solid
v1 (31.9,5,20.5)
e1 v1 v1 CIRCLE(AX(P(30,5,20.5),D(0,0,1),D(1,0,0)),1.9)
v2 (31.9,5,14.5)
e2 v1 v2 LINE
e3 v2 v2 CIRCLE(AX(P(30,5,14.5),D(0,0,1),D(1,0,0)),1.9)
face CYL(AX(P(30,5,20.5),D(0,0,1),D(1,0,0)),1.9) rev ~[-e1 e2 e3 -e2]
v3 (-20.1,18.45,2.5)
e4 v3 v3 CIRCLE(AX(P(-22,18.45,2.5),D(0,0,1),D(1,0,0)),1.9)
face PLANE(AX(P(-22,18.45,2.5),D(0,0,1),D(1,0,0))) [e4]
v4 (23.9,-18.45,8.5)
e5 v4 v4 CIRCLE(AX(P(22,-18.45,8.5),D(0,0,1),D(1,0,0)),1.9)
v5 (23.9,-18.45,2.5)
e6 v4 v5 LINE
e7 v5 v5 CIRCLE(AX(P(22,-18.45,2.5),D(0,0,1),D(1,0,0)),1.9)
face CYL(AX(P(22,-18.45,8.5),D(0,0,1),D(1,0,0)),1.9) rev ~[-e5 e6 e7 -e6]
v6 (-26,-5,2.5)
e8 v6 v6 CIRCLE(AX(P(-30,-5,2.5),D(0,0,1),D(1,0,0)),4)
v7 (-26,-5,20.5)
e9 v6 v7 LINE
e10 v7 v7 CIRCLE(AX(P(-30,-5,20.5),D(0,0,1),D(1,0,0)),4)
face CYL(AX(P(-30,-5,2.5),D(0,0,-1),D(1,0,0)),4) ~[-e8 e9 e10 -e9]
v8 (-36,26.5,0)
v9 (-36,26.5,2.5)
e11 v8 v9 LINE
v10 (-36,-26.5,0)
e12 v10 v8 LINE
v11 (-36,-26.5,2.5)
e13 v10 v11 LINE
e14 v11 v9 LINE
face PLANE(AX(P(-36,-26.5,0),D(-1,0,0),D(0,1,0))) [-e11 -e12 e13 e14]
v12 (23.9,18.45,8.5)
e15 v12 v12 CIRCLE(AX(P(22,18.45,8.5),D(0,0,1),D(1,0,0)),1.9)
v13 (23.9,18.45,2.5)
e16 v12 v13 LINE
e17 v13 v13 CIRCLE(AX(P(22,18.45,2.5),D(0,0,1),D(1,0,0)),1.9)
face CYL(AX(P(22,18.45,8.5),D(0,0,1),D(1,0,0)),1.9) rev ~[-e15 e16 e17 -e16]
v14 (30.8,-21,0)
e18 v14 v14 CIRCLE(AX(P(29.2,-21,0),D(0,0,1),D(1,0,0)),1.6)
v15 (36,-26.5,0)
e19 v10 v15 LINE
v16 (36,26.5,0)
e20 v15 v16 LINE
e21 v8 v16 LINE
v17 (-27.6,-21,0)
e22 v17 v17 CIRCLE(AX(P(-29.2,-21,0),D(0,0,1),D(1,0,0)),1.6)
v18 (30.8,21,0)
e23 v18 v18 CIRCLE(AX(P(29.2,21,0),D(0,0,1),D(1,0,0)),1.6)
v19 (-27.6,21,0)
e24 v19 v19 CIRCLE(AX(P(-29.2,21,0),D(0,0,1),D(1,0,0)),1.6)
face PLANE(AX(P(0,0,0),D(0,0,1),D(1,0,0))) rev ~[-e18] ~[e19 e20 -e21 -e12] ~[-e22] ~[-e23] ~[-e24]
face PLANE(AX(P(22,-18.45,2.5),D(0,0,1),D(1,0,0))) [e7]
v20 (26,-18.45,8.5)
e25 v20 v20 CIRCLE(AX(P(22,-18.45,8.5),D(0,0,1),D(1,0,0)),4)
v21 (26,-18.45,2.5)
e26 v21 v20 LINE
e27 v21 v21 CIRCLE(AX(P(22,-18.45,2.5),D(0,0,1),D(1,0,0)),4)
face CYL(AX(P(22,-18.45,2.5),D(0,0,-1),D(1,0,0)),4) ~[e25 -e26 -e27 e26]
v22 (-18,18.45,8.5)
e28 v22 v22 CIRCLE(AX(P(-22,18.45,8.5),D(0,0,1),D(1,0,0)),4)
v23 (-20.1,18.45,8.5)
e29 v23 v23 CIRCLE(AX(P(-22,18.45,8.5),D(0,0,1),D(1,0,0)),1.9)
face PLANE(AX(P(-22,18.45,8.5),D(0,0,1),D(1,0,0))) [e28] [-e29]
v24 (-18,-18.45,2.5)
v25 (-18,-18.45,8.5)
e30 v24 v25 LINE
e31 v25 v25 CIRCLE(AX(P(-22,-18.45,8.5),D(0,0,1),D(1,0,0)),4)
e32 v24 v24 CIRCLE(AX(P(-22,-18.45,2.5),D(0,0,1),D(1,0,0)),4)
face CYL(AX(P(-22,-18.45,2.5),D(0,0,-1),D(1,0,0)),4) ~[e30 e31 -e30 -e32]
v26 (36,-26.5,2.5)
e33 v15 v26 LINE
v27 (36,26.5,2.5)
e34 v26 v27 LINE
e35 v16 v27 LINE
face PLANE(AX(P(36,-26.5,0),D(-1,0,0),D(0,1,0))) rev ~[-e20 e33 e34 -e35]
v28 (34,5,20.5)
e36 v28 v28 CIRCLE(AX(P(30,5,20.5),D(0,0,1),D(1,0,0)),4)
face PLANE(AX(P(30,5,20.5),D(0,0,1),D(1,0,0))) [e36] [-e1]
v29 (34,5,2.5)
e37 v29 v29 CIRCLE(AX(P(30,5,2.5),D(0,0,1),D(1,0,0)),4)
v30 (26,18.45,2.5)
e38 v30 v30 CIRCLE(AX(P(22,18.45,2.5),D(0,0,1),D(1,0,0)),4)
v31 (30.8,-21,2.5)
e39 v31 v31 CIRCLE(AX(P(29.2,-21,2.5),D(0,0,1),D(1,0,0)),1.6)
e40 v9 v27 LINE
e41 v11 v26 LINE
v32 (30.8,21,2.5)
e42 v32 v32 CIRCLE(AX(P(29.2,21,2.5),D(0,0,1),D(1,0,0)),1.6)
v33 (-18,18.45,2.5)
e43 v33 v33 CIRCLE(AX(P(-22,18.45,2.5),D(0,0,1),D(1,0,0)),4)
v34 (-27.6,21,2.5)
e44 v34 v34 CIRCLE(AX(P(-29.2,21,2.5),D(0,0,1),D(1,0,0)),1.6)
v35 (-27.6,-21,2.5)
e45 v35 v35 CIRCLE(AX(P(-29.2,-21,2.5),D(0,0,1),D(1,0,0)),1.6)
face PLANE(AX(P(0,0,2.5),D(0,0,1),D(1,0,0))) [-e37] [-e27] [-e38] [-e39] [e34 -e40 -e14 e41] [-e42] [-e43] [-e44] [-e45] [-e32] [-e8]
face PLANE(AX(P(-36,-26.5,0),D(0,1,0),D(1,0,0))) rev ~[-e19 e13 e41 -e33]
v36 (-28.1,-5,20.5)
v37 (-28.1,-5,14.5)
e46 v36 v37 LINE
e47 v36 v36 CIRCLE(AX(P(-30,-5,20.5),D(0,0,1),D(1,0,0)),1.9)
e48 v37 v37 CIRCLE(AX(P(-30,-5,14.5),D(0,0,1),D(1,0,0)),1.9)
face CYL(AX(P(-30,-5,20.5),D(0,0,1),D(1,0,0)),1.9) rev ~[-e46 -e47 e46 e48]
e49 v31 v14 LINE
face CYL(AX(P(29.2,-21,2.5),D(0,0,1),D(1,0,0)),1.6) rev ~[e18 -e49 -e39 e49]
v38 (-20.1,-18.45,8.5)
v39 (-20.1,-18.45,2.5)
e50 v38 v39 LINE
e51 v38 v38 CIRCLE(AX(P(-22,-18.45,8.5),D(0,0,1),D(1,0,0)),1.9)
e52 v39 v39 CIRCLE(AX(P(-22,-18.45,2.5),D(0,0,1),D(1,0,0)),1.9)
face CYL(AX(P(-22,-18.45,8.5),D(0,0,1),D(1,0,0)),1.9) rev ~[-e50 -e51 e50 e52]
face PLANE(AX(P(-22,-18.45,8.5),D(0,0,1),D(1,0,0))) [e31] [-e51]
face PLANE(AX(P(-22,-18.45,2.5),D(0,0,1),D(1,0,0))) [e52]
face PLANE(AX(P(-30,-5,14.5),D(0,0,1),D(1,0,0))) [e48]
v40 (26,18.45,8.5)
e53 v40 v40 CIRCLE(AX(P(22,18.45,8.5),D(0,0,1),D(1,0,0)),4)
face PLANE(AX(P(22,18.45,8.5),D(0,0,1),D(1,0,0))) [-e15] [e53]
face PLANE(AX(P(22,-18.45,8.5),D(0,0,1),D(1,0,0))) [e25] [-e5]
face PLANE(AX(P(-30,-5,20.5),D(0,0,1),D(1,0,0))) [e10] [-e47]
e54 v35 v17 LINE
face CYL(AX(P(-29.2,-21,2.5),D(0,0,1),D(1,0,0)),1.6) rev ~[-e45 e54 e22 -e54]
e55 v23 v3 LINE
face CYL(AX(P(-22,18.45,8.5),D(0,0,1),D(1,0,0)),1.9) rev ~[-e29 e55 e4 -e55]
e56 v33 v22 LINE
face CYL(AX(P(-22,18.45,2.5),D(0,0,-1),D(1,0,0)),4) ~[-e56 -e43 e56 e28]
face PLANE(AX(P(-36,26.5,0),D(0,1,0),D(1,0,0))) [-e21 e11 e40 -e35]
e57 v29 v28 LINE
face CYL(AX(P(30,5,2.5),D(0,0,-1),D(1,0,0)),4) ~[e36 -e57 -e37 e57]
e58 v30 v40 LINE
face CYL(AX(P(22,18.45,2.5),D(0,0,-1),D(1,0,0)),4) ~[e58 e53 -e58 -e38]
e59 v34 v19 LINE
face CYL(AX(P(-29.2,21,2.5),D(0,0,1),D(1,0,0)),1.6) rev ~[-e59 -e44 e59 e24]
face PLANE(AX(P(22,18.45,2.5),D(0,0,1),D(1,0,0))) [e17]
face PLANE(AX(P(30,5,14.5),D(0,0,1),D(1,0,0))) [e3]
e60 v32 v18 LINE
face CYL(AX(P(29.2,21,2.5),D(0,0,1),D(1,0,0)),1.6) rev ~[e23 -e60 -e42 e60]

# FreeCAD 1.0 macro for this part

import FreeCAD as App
import Part
import Sketcher
from FreeCAD import Vector

doc = App.newDocument("Part")
params = doc.addObject("Spreadsheet::Sheet", "Params")
for row, (alias, value) in enumerate([
    ("sketch1_width", "72 mm"),
    ("sketch1_height", "53 mm"),
    ("pad1_length", "2.5 mm"),
    ("sketch2_diameter", "8 mm"),
    ("pad2_length", "6 mm"),
    ("sketch3_diameter", "3.8 mm"),
    ("pocket1_length", "6 mm"),
    ("sketch4_diameter", "3.2 mm"),
    ("sketch5_diameter", "8 mm"),
    ("pad3_length", "18 mm"),
    ("sketch6_diameter", "3.8 mm"),
    ("pocket3_length", "6 mm"),
], start=1):
    params.set(f"A{row}", alias)
    params.set(f"B{row}", "=" + value)
    params.setAlias(f"B{row}", alias)

body = doc.addObject("PartDesign::Body", "Body")

sketch1 = doc.addObject("Sketcher::SketchObject", "Sketch")
body.addObject(sketch1)
sketch1.AttachmentSupport = (doc.XY_Plane, [""])
sketch1.MapMode = "FlatFace"
sketch1.addGeometry(Part.LineSegment(Vector(-36, 26, 0), Vector(-36, -26, 0)), False)
sketch1.addGeometry(Part.LineSegment(Vector(-36, -26, 0), Vector(36, -26, 0)), False)
sketch1.addGeometry(Part.LineSegment(Vector(36, -26, 0), Vector(36, 26, 0)), False)
sketch1.addGeometry(Part.LineSegment(Vector(36, 26, 0), Vector(-36, 26, 0)), False)
sketch1.addConstraint(Sketcher.Constraint("Coincident", 0, 2, 1, 1))
sketch1.addConstraint(Sketcher.Constraint("Coincident", 1, 2, 2, 1))
sketch1.addConstraint(Sketcher.Constraint("Coincident", 2, 2, 3, 1))
sketch1.addConstraint(Sketcher.Constraint("Coincident", 3, 2, 0, 1))
sketch1.addConstraint(Sketcher.Constraint("Vertical", 0))
sketch1.addConstraint(Sketcher.Constraint("Horizontal", 1))
sketch1.addConstraint(Sketcher.Constraint("Vertical", 2))
sketch1.addConstraint(Sketcher.Constraint("Horizontal", 3))
sketch1.addConstraint(Sketcher.Constraint("Symmetric", 0, 2, 2, 2, -1, 1))
sketch1.addConstraint(Sketcher.Constraint("DistanceX", 1, 1, 1, 2, 72.0))
sketch1.addConstraint(Sketcher.Constraint("DistanceY", 0, 2, 0, 1, 53.0))
sketch1.setExpression("Constraints[9]", "Params.sketch1_width")
sketch1.setExpression("Constraints[10]", "Params.sketch1_height")
pad1 = doc.addObject("PartDesign::Pad", "Pad")
body.addObject(pad1)
pad1.Profile = sketch1
pad1.setExpression("Length", "Params.pad1_length")

sketch2 = doc.addObject("Sketcher::SketchObject", "Sketch001")
body.addObject(sketch2)
sketch2.AttachmentSupport = (doc.XY_Plane, [""])
sketch2.MapMode = "FlatFace"
sketch2.AttachmentOffset = App.Placement(Vector(0, 0, 2.5), App.Rotation())
sketch2.addGeometry(Part.Circle(Vector(-22, 18.4, 0), Vector(0, 0, 1), 4), False)
sketch2.addGeometry(Part.Circle(Vector(22, 18.4, 0), Vector(0, 0, 1), 4), False)
sketch2.addGeometry(Part.Circle(Vector(-22, -18.4, 0), Vector(0, 0, 1), 4), False)
sketch2.addGeometry(Part.Circle(Vector(22, -18.4, 0), Vector(0, 0, 1), 4), False)
sketch2.addConstraint(Sketcher.Constraint("Equal", 0, 1))
sketch2.addConstraint(Sketcher.Constraint("Equal", 1, 2))
sketch2.addConstraint(Sketcher.Constraint("Equal", 2, 3))
sketch2.addConstraint(Sketcher.Constraint("Symmetric", 1, 3, 2, 3, -1, 1))
sketch2.addConstraint(Sketcher.Constraint("Symmetric", 0, 3, 3, 3, -1, 1))
sketch2.addConstraint(Sketcher.Constraint("Symmetric", 0, 3, 1, 3, -2))
sketch2.addConstraint(Sketcher.Constraint("Diameter", 0, 8.0))
sketch2.addConstraint(Sketcher.Constraint("DistanceX", 0, 3, -1, 1, 22.0))
sketch2.addConstraint(Sketcher.Constraint("DistanceY", 2, 3, 0, 3, 36.9))
sketch2.setExpression("Constraints[6]", "Params.sketch2_diameter")
pad2 = doc.addObject("PartDesign::Pad", "Pad001")
body.addObject(pad2)
pad2.Profile = sketch2
pad2.setExpression("Length", "Params.pad2_length")

sketch3 = doc.addObject("Sketcher::SketchObject", "Sketch002")
body.addObject(sketch3)
sketch3.AttachmentSupport = (doc.XY_Plane, [""])
sketch3.MapMode = "FlatFace"
sketch3.AttachmentOffset = App.Placement(Vector(0, 0, 8.5), App.Rotation())
sketch3.addGeometry(Part.Circle(Vector(-22, 18.4, 0), Vector(0, 0, 1), 1.9), False)
sketch3.addGeometry(Part.Circle(Vector(22, 18.4, 0), Vector(0, 0, 1), 1.9), False)
sketch3.addGeometry(Part.Circle(Vector(-22, -18.4, 0), Vector(0, 0, 1), 1.9), False)
sketch3.addGeometry(Part.Circle(Vector(22, -18.4, 0), Vector(0, 0, 1), 1.9), False)
sketch3.addConstraint(Sketcher.Constraint("Equal", 0, 1))
sketch3.addConstraint(Sketcher.Constraint("Equal", 1, 2))
sketch3.addConstraint(Sketcher.Constraint("Equal", 2, 3))
sketch3.addConstraint(Sketcher.Constraint("Symmetric", 1, 3, 2, 3, -1, 1))
sketch3.addConstraint(Sketcher.Constraint("Symmetric", 0, 3, 3, 3, -1, 1))
sketch3.addConstraint(Sketcher.Constraint("Symmetric", 0, 3, 1, 3, -2))
sketch3.addConstraint(Sketcher.Constraint("Diameter", 0, 3.8))
sketch3.addConstraint(Sketcher.Constraint("DistanceX", 0, 3, -1, 1, 22.0))
sketch3.addConstraint(Sketcher.Constraint("DistanceY", 2, 3, 0, 3, 36.9))
sketch3.setExpression("Constraints[6]", "Params.sketch3_diameter")
pocket1 = doc.addObject("PartDesign::Pocket", "Pocket")
body.addObject(pocket1)
pocket1.Profile = sketch3
pocket1.setExpression("Length", "Params.pocket1_length")

sketch4 = doc.addObject("Sketcher::SketchObject", "Sketch003")
body.addObject(sketch4)
sketch4.AttachmentSupport = (doc.XY_Plane, [""])
sketch4.MapMode = "FlatFace"
sketch4.AttachmentOffset = App.Placement(Vector(0, 0, 2.5), App.Rotation())
sketch4.addGeometry(Part.Circle(Vector(-29.2, 21, 0), Vector(0, 0, 1), 1.6), False)
sketch4.addGeometry(Part.Circle(Vector(-29.2, -21, 0), Vector(0, 0, 1), 1.6), False)
sketch4.addGeometry(Part.Circle(Vector(29.2, 21, 0), Vector(0, 0, 1), 1.6), False)
sketch4.addGeometry(Part.Circle(Vector(29.2, -21, 0), Vector(0, 0, 1), 1.6), False)
sketch4.addConstraint(Sketcher.Constraint("Equal", 0, 1))
sketch4.addConstraint(Sketcher.Constraint("Equal", 1, 2))
sketch4.addConstraint(Sketcher.Constraint("Equal", 2, 3))
sketch4.addConstraint(Sketcher.Constraint("Symmetric", 1, 3, 2, 3, -1, 1))
sketch4.addConstraint(Sketcher.Constraint("Symmetric", 0, 3, 3, 3, -1, 1))
sketch4.addConstraint(Sketcher.Constraint("Symmetric", 0, 3, 2, 3, -2))
sketch4.addConstraint(Sketcher.Constraint("Diameter", 0, 3.2))
sketch4.addConstraint(Sketcher.Constraint("DistanceY", -1, 1, 0, 3, 21.0))
sketch4.addConstraint(Sketcher.Constraint("DistanceX", 0, 3, -1, 1, 29.2))
sketch4.setExpression("Constraints[6]", "Params.sketch4_diameter")
pocket2 = doc.addObject("PartDesign::Pocket", "Pocket001")
body.addObject(pocket2)
pocket2.Profile = sketch4
pocket2.Type = "ThroughAll"

sketch5 = doc.addObject("Sketcher::SketchObject", "Sketch004")
body.addObject(sketch5)
sketch5.AttachmentSupport = (doc.XY_Plane, [""])
sketch5.MapMode = "FlatFace"
sketch5.AttachmentOffset = App.Placement(Vector(0, 0, 2.5), App.Rotation())
sketch5.addGeometry(Part.Circle(Vector(30, 5, 0), Vector(0, 0, 1), 4), False)
sketch5.addGeometry(Part.Circle(Vector(-30, -5, 0), Vector(0, 0, 1), 4), False)
sketch5.addConstraint(Sketcher.Constraint("Equal", 0, 1))
sketch5.addConstraint(Sketcher.Constraint("Symmetric", 0, 3, 1, 3, -1, 1))
sketch5.addConstraint(Sketcher.Constraint("Diameter", 0, 8.0))
sketch5.addConstraint(Sketcher.Constraint("DistanceX", -1, 1, 0, 3, 30.0))
sketch5.addConstraint(Sketcher.Constraint("DistanceY", -1, 1, 0, 3, 5.0))
sketch5.setExpression("Constraints[2]", "Params.sketch5_diameter")
pad3 = doc.addObject("PartDesign::Pad", "Pad002")
body.addObject(pad3)
pad3.Profile = sketch5
pad3.setExpression("Length", "Params.pad3_length")

sketch6 = doc.addObject("Sketcher::SketchObject", "Sketch005")
body.addObject(sketch6)
sketch6.AttachmentSupport = (doc.XY_Plane, [""])
sketch6.MapMode = "FlatFace"
sketch6.AttachmentOffset = App.Placement(Vector(0, 0, 20.5), App.Rotation())
sketch6.addGeometry(Part.Circle(Vector(-30, -5, 0), Vector(0, 0, 1), 1.9), False)
sketch6.addGeometry(Part.Circle(Vector(30, 5, 0), Vector(0, 0, 1), 1.9), False)
sketch6.addConstraint(Sketcher.Constraint("Equal", 0, 1))
sketch6.addConstraint(Sketcher.Constraint("Symmetric", 0, 3, 1, 3, -1, 1))
sketch6.addConstraint(Sketcher.Constraint("Diameter", 0, 3.8))
sketch6.addConstraint(Sketcher.Constraint("DistanceX", 0, 3, -1, 1, 30.0))
sketch6.addConstraint(Sketcher.Constraint("DistanceY", 0, 3, -1, 1, 5.0))
sketch6.setExpression("Constraints[2]", "Params.sketch6_diameter")
pocket3 = doc.addObject("PartDesign::Pocket", "Pocket002")
body.addObject(pocket3)
pocket3.Profile = sketch6
pocket3.setExpression("Length", "Params.pocket3_length")

doc.recompute()
